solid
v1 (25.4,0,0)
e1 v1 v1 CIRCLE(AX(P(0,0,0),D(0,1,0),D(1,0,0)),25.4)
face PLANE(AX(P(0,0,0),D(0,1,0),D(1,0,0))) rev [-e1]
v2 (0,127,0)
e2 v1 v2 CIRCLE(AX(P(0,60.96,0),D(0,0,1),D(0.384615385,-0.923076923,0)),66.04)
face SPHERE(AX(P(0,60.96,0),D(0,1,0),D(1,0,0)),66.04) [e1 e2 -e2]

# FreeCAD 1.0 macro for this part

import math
import FreeCAD as App
import Part
import Sketcher

V = App.Vector
Q = App.Units.Quantity

doc = App.newDocument("Part")
body = doc.addObject("PartDesign::Body", "Body")

sketch1 = body.newObject("Sketcher::SketchObject", "Sketch")
sketch1.AttachmentSupport = (doc.getObject("XY_Plane"), [""])
sketch1.MapMode = "FlatFace"
sketch1.addGeometry([
    Part.LineSegment(V(0, 127, 0), V(0, 0, 0)),
    Part.LineSegment(V(0, 0, 0), V(25, 0, 0)),
    Part.ArcOfCircle(Part.Circle(V(0, 61, 0), V(0, 0, 1), 66), math.radians(-67), math.radians(90)),
], False)
sketch1.addConstraint([
    Sketcher.Constraint("Coincident", 0, 2, 1, 1),
    Sketcher.Constraint("Coincident", 1, 2, 2, 1),
    Sketcher.Constraint("Coincident", 2, 2, 0, 1),
    Sketcher.Constraint("Vertical", 0),
    Sketcher.Constraint("Horizontal", 1),
    Sketcher.Constraint("Coincident", 0, 2, -1, 1),
    Sketcher.Constraint("PointOnObject", 2, 3, -2),
    Sketcher.Constraint("Radius", 2, Q("2.6 in")),
    Sketcher.Constraint("DistanceY", 0, 2, 0, 1, Q("5 in")),
])
revolution = body.newObject("PartDesign::Revolution", "Revolution")
revolution.Profile = sketch1
revolution.ReferenceAxis = (sketch1, ["V_Axis"])
revolution.Angle = 360

doc.recompute()
